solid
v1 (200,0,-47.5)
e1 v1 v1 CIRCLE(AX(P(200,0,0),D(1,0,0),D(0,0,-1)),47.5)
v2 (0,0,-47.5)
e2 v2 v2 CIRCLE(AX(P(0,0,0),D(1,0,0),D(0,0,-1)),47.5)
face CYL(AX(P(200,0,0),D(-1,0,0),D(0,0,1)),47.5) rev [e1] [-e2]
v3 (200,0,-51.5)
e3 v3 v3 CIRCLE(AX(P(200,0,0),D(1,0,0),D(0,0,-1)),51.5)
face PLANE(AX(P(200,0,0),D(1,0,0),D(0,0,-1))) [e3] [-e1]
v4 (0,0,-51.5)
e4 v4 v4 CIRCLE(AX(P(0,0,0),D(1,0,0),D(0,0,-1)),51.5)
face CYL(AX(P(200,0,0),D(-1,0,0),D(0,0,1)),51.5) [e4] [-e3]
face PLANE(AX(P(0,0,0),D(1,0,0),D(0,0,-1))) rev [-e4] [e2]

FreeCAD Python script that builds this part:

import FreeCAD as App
import Part
import Sketcher

V = App.Vector
Q = App.Units.Quantity

doc = App.newDocument("Part")
body = doc.addObject("PartDesign::Body", "Body")

sketch1 = body.newObject("Sketcher::SketchObject", "Sketch")
sketch1.AttachmentSupport = (doc.getObject("YZ_Plane"), [""])
sketch1.MapMode = "FlatFace"
sketch1.addGeometry([
    Part.Circle(V(0, 0, 0), V(0, 0, 1), 51.5),
    Part.Circle(V(0, 0, 0), V(0, 0, 1), 47.5),
], False)
sketch1.addConstraint([
    Sketcher.Constraint("Coincident", 0, 3, -1, 1),
    Sketcher.Constraint("Coincident", 1, 3, -1, 1),
    Sketcher.Constraint("Diameter", 0, Q("103 mm")),
    Sketcher.Constraint("Diameter", 1, Q("95 mm")),
])
pad1 = body.newObject("PartDesign::Pad", "Pad")
pad1.Profile = sketch1
pad1.Length = 200

doc.recompute()
